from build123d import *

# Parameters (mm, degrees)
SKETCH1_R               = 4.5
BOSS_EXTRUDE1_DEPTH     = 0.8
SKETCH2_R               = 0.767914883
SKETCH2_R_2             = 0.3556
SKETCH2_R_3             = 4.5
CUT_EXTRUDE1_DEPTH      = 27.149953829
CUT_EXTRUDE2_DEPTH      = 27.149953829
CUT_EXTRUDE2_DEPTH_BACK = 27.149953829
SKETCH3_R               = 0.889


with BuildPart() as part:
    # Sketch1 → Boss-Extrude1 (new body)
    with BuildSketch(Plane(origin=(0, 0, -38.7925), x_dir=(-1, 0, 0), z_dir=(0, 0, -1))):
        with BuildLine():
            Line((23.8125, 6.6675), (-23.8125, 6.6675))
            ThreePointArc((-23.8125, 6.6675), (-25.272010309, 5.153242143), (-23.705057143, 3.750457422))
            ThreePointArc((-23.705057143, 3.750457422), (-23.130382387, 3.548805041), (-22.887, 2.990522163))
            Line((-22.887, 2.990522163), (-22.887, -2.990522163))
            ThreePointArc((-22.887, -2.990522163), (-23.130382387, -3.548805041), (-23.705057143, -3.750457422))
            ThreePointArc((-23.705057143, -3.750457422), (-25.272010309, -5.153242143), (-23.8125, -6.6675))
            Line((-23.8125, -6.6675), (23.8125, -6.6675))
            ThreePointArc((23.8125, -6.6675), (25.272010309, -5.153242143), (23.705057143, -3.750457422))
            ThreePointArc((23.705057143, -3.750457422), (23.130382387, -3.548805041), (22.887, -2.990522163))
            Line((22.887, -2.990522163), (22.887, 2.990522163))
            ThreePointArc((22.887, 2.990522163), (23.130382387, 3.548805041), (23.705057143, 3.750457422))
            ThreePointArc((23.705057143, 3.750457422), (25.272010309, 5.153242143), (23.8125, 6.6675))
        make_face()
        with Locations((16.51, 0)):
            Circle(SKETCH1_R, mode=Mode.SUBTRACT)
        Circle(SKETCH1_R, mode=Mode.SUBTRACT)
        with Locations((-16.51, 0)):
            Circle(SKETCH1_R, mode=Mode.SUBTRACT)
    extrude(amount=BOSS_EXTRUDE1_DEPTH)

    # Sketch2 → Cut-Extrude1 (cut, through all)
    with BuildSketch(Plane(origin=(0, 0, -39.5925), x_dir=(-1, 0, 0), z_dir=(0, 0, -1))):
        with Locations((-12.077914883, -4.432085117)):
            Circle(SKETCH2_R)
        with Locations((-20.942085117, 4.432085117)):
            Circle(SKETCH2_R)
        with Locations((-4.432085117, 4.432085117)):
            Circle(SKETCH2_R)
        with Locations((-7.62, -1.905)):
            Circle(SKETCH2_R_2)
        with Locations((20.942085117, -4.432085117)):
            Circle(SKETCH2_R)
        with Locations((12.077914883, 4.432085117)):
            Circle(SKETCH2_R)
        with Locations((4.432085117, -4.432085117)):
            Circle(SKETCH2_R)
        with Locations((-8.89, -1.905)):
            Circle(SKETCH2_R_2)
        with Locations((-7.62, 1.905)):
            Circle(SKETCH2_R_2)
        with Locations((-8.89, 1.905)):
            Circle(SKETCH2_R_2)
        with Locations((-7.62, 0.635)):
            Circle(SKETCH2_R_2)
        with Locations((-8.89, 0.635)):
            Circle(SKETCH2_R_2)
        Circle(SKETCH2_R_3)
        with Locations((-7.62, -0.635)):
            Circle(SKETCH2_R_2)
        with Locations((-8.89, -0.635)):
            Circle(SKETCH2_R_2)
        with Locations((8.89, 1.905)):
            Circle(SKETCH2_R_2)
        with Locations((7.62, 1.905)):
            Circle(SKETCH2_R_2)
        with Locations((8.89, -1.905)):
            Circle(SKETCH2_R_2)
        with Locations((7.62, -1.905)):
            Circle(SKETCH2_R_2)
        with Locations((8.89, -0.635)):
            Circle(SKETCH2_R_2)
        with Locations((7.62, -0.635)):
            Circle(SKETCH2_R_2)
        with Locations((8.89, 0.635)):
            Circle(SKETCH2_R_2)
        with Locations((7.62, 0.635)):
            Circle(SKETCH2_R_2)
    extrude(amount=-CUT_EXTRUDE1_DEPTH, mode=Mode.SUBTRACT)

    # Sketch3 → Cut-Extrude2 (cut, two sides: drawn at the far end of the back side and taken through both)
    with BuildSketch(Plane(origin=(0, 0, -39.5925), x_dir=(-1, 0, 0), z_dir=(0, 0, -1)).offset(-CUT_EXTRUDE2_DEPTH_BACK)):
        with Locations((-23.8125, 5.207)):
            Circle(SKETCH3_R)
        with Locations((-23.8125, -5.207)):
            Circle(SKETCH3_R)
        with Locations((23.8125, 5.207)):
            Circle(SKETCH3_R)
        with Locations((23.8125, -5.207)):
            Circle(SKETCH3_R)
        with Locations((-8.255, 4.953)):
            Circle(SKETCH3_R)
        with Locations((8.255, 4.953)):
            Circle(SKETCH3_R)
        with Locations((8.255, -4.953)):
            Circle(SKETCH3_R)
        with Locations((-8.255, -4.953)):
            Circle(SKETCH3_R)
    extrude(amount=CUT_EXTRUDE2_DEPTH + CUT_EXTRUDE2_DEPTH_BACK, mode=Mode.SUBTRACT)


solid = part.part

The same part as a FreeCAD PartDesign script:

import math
import FreeCAD as App
import Part
import Sketcher

V = App.Vector
Q = App.Units.Quantity

doc = App.newDocument("Part")
body = doc.addObject("PartDesign::Body", "Body")

# Sketch on XY plane
sketch1 = doc.addObject("Sketcher::SketchObject", "Sketch")
body.addObject(sketch1)
sketch1.AttachmentSupport = (doc.XY_Plane, [""])
sketch1.MapMode = "FlatFace"
sketch1.AttachmentOffset = App.Placement(V(0, 0, -38.7925), App.Rotation())
sketch1.addGeometry(Part.LineSegment(V(-23.8, 6.7, 0), V(23.8, 6.7, 0)), False)
sketch1.addGeometry(Part.ArcOfCircle(Part.Circle(V(23.8, 5.2, 0), V(0, 0, 1), 1.5), math.radians(-94), math.radians(90)), False)
sketch1.addGeometry(Part.ArcOfCircle(Part.Circle(V(23.6, 3, 0), V(0, 0, 1), 0.8), math.radians(86), math.radians(180)), False)
sketch1.addGeometry(Part.LineSegment(V(22.9, 3, 0), V(22.9, -3, 0)), False)
sketch1.addGeometry(Part.ArcOfCircle(Part.Circle(V(23.6, -3, 0), V(0, 0, 1), 0.8), math.radians(180), math.radians(274)), False)
sketch1.addGeometry(Part.ArcOfCircle(Part.Circle(V(23.8, -5.2, 0), V(0, 0, 1), 1.5), math.radians(-90), math.radians(94)), False)
sketch1.addGeometry(Part.LineSegment(V(23.8, -6.7, 0), V(-23.8, -6.7, 0)), False)
sketch1.addGeometry(Part.ArcOfCircle(Part.Circle(V(-23.8, -5.2, 0), V(0, 0, 1), 1.5), math.radians(86), math.radians(270)), False)
sketch1.addGeometry(Part.ArcOfCircle(Part.Circle(V(-23.6, -3, 0), V(0, 0, 1), 0.8), math.radians(-94), math.radians(0)), False)
sketch1.addGeometry(Part.LineSegment(V(-22.9, -3, 0), V(-22.9, 3, 0)), False)
sketch1.addGeometry(Part.ArcOfCircle(Part.Circle(V(-23.6, 3, 0), V(0, 0, 1), 0.8), math.radians(0), math.radians(94)), False)
sketch1.addGeometry(Part.ArcOfCircle(Part.Circle(V(-23.8, 5.2, 0), V(0, 0, 1), 1.5), math.radians(90), math.radians(274)), False)
sketch1.addGeometry(Part.Circle(V(16.5, 0, 0), V(0, 0, 1), 4.5), False)
sketch1.addGeometry(Part.Circle(V(0, 0, 0), V(0, 0, 1), 4.5), False)
sketch1.addGeometry(Part.Circle(V(-16.5, 0, 0), V(0, 0, 1), 4.5), False)
sketch1.addConstraint(Sketcher.Constraint("Tangent", 0, 2, 1, 2))
sketch1.addConstraint(Sketcher.Constraint("Tangent", 1, 1, 2, 1))
sketch1.addConstraint(Sketcher.Constraint("Tangent", 2, 2, 3, 1))
sketch1.addConstraint(Sketcher.Constraint("Tangent", 3, 2, 4, 1))
sketch1.addConstraint(Sketcher.Constraint("Tangent", 4, 2, 5, 2))
sketch1.addConstraint(Sketcher.Constraint("Tangent", 5, 1, 6, 1))
sketch1.addConstraint(Sketcher.Constraint("Tangent", 6, 2, 7, 2))
sketch1.addConstraint(Sketcher.Constraint("Tangent", 7, 1, 8, 1))
sketch1.addConstraint(Sketcher.Constraint("Tangent", 8, 2, 9, 1))
sketch1.addConstraint(Sketcher.Constraint("Tangent", 9, 2, 10, 1))
sketch1.addConstraint(Sketcher.Constraint("Tangent", 10, 2, 11, 2))
sketch1.addConstraint(Sketcher.Constraint("Tangent", 11, 1, 0, 1))
sketch1.addConstraint(Sketcher.Constraint("Horizontal", 0))
sketch1.addConstraint(Sketcher.Constraint("Vertical", 3))
sketch1.addConstraint(Sketcher.Constraint("Horizontal", 6))
sketch1.addConstraint(Sketcher.Constraint("Vertical", 9))
sketch1.addConstraint(Sketcher.Constraint("Coincident", 13, 3, -1, 1))
sketch1.addConstraint(Sketcher.Constraint("Equal", 2, 4))
sketch1.addConstraint(Sketcher.Constraint("Equal", 1, 5))
sketch1.addConstraint(Sketcher.Constraint("Equal", 5, 7))
sketch1.addConstraint(Sketcher.Constraint("Equal", 4, 8))
sketch1.addConstraint(Sketcher.Constraint("Equal", 8, 10))
sketch1.addConstraint(Sketcher.Constraint("Equal", 7, 11))
sketch1.addConstraint(Sketcher.Constraint("Equal", 12, 13))
sketch1.addConstraint(Sketcher.Constraint("Equal", 13, 14))
sketch1.addConstraint(Sketcher.Constraint("Symmetric", 1, 3, 7, 3, -1, 1))
sketch1.addConstraint(Sketcher.Constraint("Symmetric", 4, 3, 10, 3, -1, 1))
sketch1.addConstraint(Sketcher.Constraint("Symmetric", 12, 3, 14, 3, -1, 1))
sketch1.addConstraint(Sketcher.Constraint("PointOnObject", 12, 3, -1))
sketch1.addConstraint(Sketcher.Constraint("Horizontal", 4, 3, 8, 3))
sketch1.addConstraint(Sketcher.Constraint("Radius", 2, Q("0.03 in")))
sketch1.addConstraint(Sketcher.Constraint("Radius", 1, Q("0.0575 in")))
sketch1.addConstraint(Sketcher.Constraint("Diameter", 12, Q("9 mm")))
sketch1.addConstraint(Sketcher.Constraint("DistanceX", 0, 1, 0, 2, Q("1.875 in")))
sketch1.addConstraint(Sketcher.Constraint("DistanceX", -1, 1, 12, 3, Q("0.65 in")))
sketch1.addConstraint(Sketcher.Constraint("DistanceY", 5, 3, 1, 3, Q("0.41 in")))
sketch1.addConstraint(Sketcher.Constraint("DistanceX", -1, 1, 2, 3, Q("23.649 mm")))
pad1 = doc.addObject("PartDesign::Pad", "Pad")
body.addObject(pad1)
pad1.Profile = sketch1
pad1.Length = 0.8
pad1.Reversed = True

# Sketch on XY plane
sketch2 = doc.addObject("Sketcher::SketchObject", "Sketch001")
body.addObject(sketch2)
sketch2.AttachmentSupport = (doc.XY_Plane, [""])
sketch2.MapMode = "FlatFace"
sketch2.AttachmentOffset = App.Placement(V(0, 0, -39.5925), App.Rotation())
sketch2.addGeometry(Part.Circle(V(12.08, -4.43, 0), V(0, 0, 1), 0.77), False)
sketch2.addGeometry(Part.Circle(V(20.94, 4.43, 0), V(0, 0, 1), 0.77), False)
sketch2.addGeometry(Part.Circle(V(4.43, 4.43, 0), V(0, 0, 1), 0.77), False)
sketch2.addGeometry(Part.Circle(V(7.62, -1.91, 0), V(0, 0, 1), 0.36), False)
sketch2.addGeometry(Part.Circle(V(-20.94, -4.43, 0), V(0, 0, 1), 0.77), False)
sketch2.addGeometry(Part.Circle(V(-12.08, 4.43, 0), V(0, 0, 1), 0.77), False)
sketch2.addGeometry(Part.Circle(V(-4.43, -4.43, 0), V(0, 0, 1), 0.77), False)
sketch2.addGeometry(Part.Circle(V(8.89, -1.91, 0), V(0, 0, 1), 0.36), False)
sketch2.addGeometry(Part.Circle(V(7.62, 1.91, 0), V(0, 0, 1), 0.36), False)
sketch2.addGeometry(Part.Circle(V(8.89, 1.91, 0), V(0, 0, 1), 0.36), False)
sketch2.addGeometry(Part.Circle(V(7.62, 0.64, 0), V(0, 0, 1), 0.36), False)
sketch2.addGeometry(Part.Circle(V(8.89, 0.64, 0), V(0, 0, 1), 0.36), False)
sketch2.addGeometry(Part.Circle(V(0, 0, 0), V(0, 0, 1), 4.5), False)
sketch2.addGeometry(Part.Circle(V(7.62, -0.64, 0), V(0, 0, 1), 0.36), False)
sketch2.addGeometry(Part.Circle(V(8.89, -0.64, 0), V(0, 0, 1), 0.36), False)
sketch2.addGeometry(Part.Circle(V(-8.89, 1.91, 0), V(0, 0, 1), 0.36), False)
sketch2.addGeometry(Part.Circle(V(-7.62, 1.91, 0), V(0, 0, 1), 0.36), False)
sketch2.addGeometry(Part.Circle(V(-8.89, -1.91, 0), V(0, 0, 1), 0.36), False)
sketch2.addGeometry(Part.Circle(V(-7.62, -1.91, 0), V(0, 0, 1), 0.36), False)
sketch2.addGeometry(Part.Circle(V(-8.89, -0.64, 0), V(0, 0, 1), 0.36), False)
sketch2.addGeometry(Part.Circle(V(-7.62, -0.64, 0), V(0, 0, 1), 0.36), False)
sketch2.addGeometry(Part.Circle(V(-8.89, 0.64, 0), V(0, 0, 1), 0.36), False)
sketch2.addGeometry(Part.Circle(V(-7.62, 0.64, 0), V(0, 0, 1), 0.36), False)
sketch2.addConstraint(Sketcher.Constraint("Coincident", 12, 3, -1, 1))
sketch2.addConstraint(Sketcher.Constraint("Equal", 0, 1))
sketch2.addConstraint(Sketcher.Constraint("Equal", 1, 2))
sketch2.addConstraint(Sketcher.Constraint("Equal", 2, 4))
sketch2.addConstraint(Sketcher.Constraint("Equal", 4, 5))
sketch2.addConstraint(Sketcher.Constraint("Equal", 5, 6))
sketch2.addConstraint(Sketcher.Constraint("Equal", 3, 7))
sketch2.addConstraint(Sketcher.Constraint("Equal", 7, 8))
sketch2.addConstraint(Sketcher.Constraint("Equal", 8, 9))
sketch2.addConstraint(Sketcher.Constraint("Equal", 9, 10))
sketch2.addConstraint(Sketcher.Constraint("Equal", 10, 11))
sketch2.addConstraint(Sketcher.Constraint("Equal", 11, 13))
sketch2.addConstraint(Sketcher.Constraint("Equal", 13, 14))
sketch2.addConstraint(Sketcher.Constraint("Equal", 14, 15))
sketch2.addConstraint(Sketcher.Constraint("Equal", 15, 16))
sketch2.addConstraint(Sketcher.Constraint("Equal", 16, 17))
sketch2.addConstraint(Sketcher.Constraint("Equal", 17, 18))
sketch2.addConstraint(Sketcher.Constraint("Equal", 18, 19))
sketch2.addConstraint(Sketcher.Constraint("Equal", 19, 20))
sketch2.addConstraint(Sketcher.Constraint("Equal", 20, 21))
sketch2.addConstraint(Sketcher.Constraint("Equal", 21, 22))
sketch2.addConstraint(Sketcher.Constraint("Symmetric", 1, 3, 4, 3, -1, 1))
sketch2.addConstraint(Sketcher.Constraint("Symmetric", 0, 3, 5, 3, -1, 1))
sketch2.addConstraint(Sketcher.Constraint("Symmetric", 2, 3, 6, 3, -1, 1))
sketch2.addConstraint(Sketcher.Constraint("Symmetric", 7, 3, 15, 3, -1, 1))
sketch2.addConstraint(Sketcher.Constraint("Symmetric", 3, 3, 16, 3, -1, 1))
sketch2.addConstraint(Sketcher.Constraint("Symmetric", 9, 3, 17, 3, -1, 1))
sketch2.addConstraint(Sketcher.Constraint("Symmetric", 8, 3, 18, 3, -1, 1))
sketch2.addConstraint(Sketcher.Constraint("Symmetric", 11, 3, 19, 3, -1, 1))
sketch2.addConstraint(Sketcher.Constraint("Symmetric", 10, 3, 20, 3, -1, 1))
sketch2.addConstraint(Sketcher.Constraint("Symmetric", 14, 3, 21, 3, -1, 1))
sketch2.addConstraint(Sketcher.Constraint("Symmetric", 13, 3, 22, 3, -1, 1))
sketch2.addConstraint(Sketcher.Constraint("Symmetric", 9, 3, 15, 3, -2))
sketch2.addConstraint(Sketcher.Constraint("Symmetric", 8, 3, 16, 3, -2))
sketch2.addConstraint(Sketcher.Constraint("Symmetric", 14, 3, 19, 3, -2))
sketch2.addConstraint(Sketcher.Constraint("Symmetric", 13, 3, 20, 3, -2))
sketch2.addConstraint(Sketcher.Constraint("Horizontal", 1, 3, 2, 3))
sketch2.addConstraint(Sketcher.Constraint("Horizontal", 0, 3, 4, 3))
sketch2.addConstraint(Sketcher.Constraint("Horizontal", 3, 3, 7, 3))
sketch2.addConstraint(Sketcher.Constraint("Horizontal", 10, 3, 11, 3))
sketch2.addConstraint(Sketcher.Constraint("Vertical", 8, 3, 10, 3))
sketch2.addConstraint(Sketcher.Constraint("Vertical", 9, 3, 11, 3))
sketch2.addConstraint(Sketcher.Constraint("Diameter", 3, Q("0.028 in")))
sketch2.addConstraint(Sketcher.Constraint("DistanceX", -1, 1, 3, 3, Q("0.3 in")))
sketch2.addConstraint(Sketcher.Constraint("DistanceX", 4, 3, 0, 3, Q("1.3 in")))
sketch2.addConstraint(Sketcher.Constraint("DistanceY", 3, 3, 10, 3, Q("0.1 in")))
sketch2.addConstraint(Sketcher.Constraint("Diameter", 12, Q("9 mm")))
sketch2.addConstraint(Sketcher.Constraint("DistanceX", -1, 1, 7, 3, Q("0.35 in")))
sketch2.addConstraint(Sketcher.Constraint("DistanceX", 2, 3, 1, 3, Q("0.65 in")))
sketch2.addConstraint(Sketcher.Constraint("DistanceY", 3, 3, 8, 3, Q("0.15 in")))
sketch2.addConstraint(Sketcher.Constraint("Diameter", 0, Q("1.53583 mm")))
sketch2.addConstraint(Sketcher.Constraint("DistanceX", 0, 3, 1, 3, Q("8.86417 mm")))
sketch2.addConstraint(Sketcher.Constraint("DistanceY", 0, 3, 1, 3, Q("8.86417 mm")))
pocket1 = doc.addObject("PartDesign::Pocket", "Pocket")
body.addObject(pocket1)
pocket1.Profile = sketch2
pocket1.Type = "ThroughAll"
pocket1.Reversed = True

# Sketch on XY plane
sketch3 = doc.addObject("Sketcher::SketchObject", "Sketch002")
body.addObject(sketch3)
sketch3.AttachmentSupport = (doc.XY_Plane, [""])
sketch3.MapMode = "FlatFace"
sketch3.AttachmentOffset = App.Placement(V(0, 0, -39.5925), App.Rotation())
sketch3.addGeometry(Part.Circle(V(23.8, 5.2, 0), V(0, 0, 1), 0.9), False)
sketch3.addGeometry(Part.Circle(V(23.8, -5.2, 0), V(0, 0, 1), 0.9), False)
sketch3.addGeometry(Part.Circle(V(-23.8, 5.2, 0), V(0, 0, 1), 0.9), False)
sketch3.addGeometry(Part.Circle(V(-23.8, -5.2, 0), V(0, 0, 1), 0.9), False)
sketch3.addGeometry(Part.Circle(V(8.3, 5, 0), V(0, 0, 1), 0.9), False)
sketch3.addGeometry(Part.Circle(V(-8.3, 5, 0), V(0, 0, 1), 0.9), False)
sketch3.addGeometry(Part.Circle(V(-8.3, -5, 0), V(0, 0, 1), 0.9), False)
sketch3.addGeometry(Part.Circle(V(8.3, -5, 0), V(0, 0, 1), 0.9), False)
sketch3.addConstraint(Sketcher.Constraint("Equal", 0, 1))
sketch3.addConstraint(Sketcher.Constraint("Equal", 1, 2))
sketch3.addConstraint(Sketcher.Constraint("Equal", 2, 3))
sketch3.addConstraint(Sketcher.Constraint("Equal", 3, 4))
sketch3.addConstraint(Sketcher.Constraint("Equal", 4, 5))
sketch3.addConstraint(Sketcher.Constraint("Equal", 5, 6))
sketch3.addConstraint(Sketcher.Constraint("Equal", 6, 7))
sketch3.addConstraint(Sketcher.Constraint("Symmetric", 1, 3, 2, 3, -1, 1))
sketch3.addConstraint(Sketcher.Constraint("Symmetric", 0, 3, 3, 3, -1, 1))
sketch3.addConstraint(Sketcher.Constraint("Symmetric", 4, 3, 6, 3, -1, 1))
sketch3.addConstraint(Sketcher.Constraint("Symmetric", 5, 3, 7, 3, -1, 1))
sketch3.addConstraint(Sketcher.Constraint("Symmetric", 0, 3, 2, 3, -2))
sketch3.addConstraint(Sketcher.Constraint("Symmetric", 4, 3, 5, 3, -2))
sketch3.addConstraint(Sketcher.Constraint("Diameter", 0, Q("0.07 in")))
sketch3.addConstraint(Sketcher.Constraint("DistanceY", 1, 3, 4, 3, Q("0.4 in")))
sketch3.addConstraint(Sketcher.Constraint("DistanceY", 1, 3, 0, 3, Q("0.41 in")))
sketch3.addConstraint(Sketcher.Constraint("DistanceX", 5, 3, 4, 3, Q("0.65 in")))
sketch3.addConstraint(Sketcher.Constraint("DistanceX", -1, 1, 0, 3, Q("0.9375 in")))
pocket2 = doc.addObject("PartDesign::Pocket", "Pocket001")
body.addObject(pocket2)
pocket2.Profile = sketch3
pocket2.Type = "ThroughAll"
pocket2.Midplane = True

doc.recompute()
